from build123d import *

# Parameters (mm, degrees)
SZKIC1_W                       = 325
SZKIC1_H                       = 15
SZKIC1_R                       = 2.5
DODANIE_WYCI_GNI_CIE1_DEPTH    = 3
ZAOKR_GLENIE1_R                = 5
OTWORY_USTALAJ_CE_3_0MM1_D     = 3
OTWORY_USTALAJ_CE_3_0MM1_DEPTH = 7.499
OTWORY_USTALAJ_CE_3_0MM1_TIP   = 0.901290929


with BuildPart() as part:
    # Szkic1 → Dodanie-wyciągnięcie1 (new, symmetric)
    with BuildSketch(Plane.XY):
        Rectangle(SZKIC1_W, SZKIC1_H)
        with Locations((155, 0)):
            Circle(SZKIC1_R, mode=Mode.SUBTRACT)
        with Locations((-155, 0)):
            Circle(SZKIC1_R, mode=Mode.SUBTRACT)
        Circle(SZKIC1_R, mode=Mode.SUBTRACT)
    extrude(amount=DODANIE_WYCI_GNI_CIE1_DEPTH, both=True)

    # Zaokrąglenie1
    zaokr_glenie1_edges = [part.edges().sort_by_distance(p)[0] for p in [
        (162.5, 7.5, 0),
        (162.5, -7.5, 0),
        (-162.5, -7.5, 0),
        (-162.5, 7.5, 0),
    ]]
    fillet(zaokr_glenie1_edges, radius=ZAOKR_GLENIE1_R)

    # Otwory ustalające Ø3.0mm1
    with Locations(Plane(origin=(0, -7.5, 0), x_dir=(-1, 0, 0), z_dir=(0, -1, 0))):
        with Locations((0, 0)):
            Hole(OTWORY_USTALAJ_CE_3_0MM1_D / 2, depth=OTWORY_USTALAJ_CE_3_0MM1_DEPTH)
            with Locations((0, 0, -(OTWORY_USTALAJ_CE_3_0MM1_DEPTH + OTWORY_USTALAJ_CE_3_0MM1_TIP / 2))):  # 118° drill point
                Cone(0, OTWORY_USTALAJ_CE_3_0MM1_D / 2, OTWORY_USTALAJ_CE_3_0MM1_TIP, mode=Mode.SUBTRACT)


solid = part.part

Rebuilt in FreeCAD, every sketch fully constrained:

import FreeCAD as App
import Part
import Sketcher


def edges_at(feature, points):
    """Names of the edges that pass closest to the given points."""
    edges = feature.Shape.Edges
    near = lambda p: min(range(len(edges)), key=lambda i: edges[i].distToShape(Part.Vertex(*p))[0])
    return sorted({f"Edge{near(p) + 1}" for p in points})


def add_polygon(sketch, points):
    """Adds a closed chain of lines whose ends are joined by coincident constraints."""
    first, n = sketch.GeometryCount, len(points)
    for a, b in zip(points, points[1:] + points[:1]):
        sketch.addGeometry(Part.LineSegment(App.Vector(*a, 0), App.Vector(*b, 0)), False)
    for i in range(n):
        sketch.addConstraint(Sketcher.Constraint("Coincident", first + i, 2, first + (i + 1) % n, 1))

doc = App.newDocument("Part")
body = doc.addObject("PartDesign::Body", "Body")

# Sketch on XY plane
sketch1 = doc.addObject("Sketcher::SketchObject", "Sketch")
body.addObject(sketch1)
sketch1.AttachmentSupport = (doc.XY_Plane, [""])
sketch1.MapMode = "FlatFace"
add_polygon(sketch1, [(-162.5, 7.5), (-162.5, -7.5), (162.5, -7.5), (162.5, 7.5)])  # lines 0-3
sketch1.addGeometry(Part.Circle(App.Vector(-155, 0, 0), App.Vector(0, 0, 1), 2.5), False)  # 4
sketch1.addGeometry(Part.Circle(App.Vector(0, 0, 0), App.Vector(0, 0, 1), 2.5), False)  # 5
sketch1.addGeometry(Part.Circle(App.Vector(155, 0, 0), App.Vector(0, 0, 1), 2.5), False)  # 6
sketch1.addConstraint([
    Sketcher.Constraint("Vertical", 0),
    Sketcher.Constraint("Horizontal", 1),
    Sketcher.Constraint("Vertical", 2),
    Sketcher.Constraint("Horizontal", 3),
    Sketcher.Constraint("Coincident", 5, 3, -1, 1),
    Sketcher.Constraint("Equal", 4, 5),
    Sketcher.Constraint("Equal", 5, 6),
    Sketcher.Constraint("Symmetric", 4, 3, 6, 3, -1, 1),
    Sketcher.Constraint("Symmetric", 0, 2, 2, 2, -1, 1),
    Sketcher.Constraint("PointOnObject", 4, 3, -1),
    Sketcher.Constraint("Diameter", 4, 5.0),
    Sketcher.Constraint("DistanceX", 1, 1, 1, 2, 325.0),
    Sketcher.Constraint("DistanceY", 0, 2, 0, 1, 15.0),
    Sketcher.Constraint("DistanceX", 4, 3, -1, 1, 155.0),
])
pad1 = doc.addObject("PartDesign::Pad", "Pad")
body.addObject(pad1)
pad1.Profile = sketch1
pad1.Length = 6
pad1.Midplane = True
doc.recompute()

fillet = doc.addObject("PartDesign::Fillet", "Fillet")
body.addObject(fillet)
fillet.Base = (pad1, edges_at(pad1, [
    (162.5, 7.5, 0),
    (162.5, -7.5, 0),
    (-162.5, -7.5, 0),
    (-162.5, 7.5, 0),
]))
fillet.Radius = 5

# Sketch on XZ plane
sketch2 = doc.addObject("Sketcher::SketchObject", "Sketch001")
body.addObject(sketch2)
sketch2.AttachmentSupport = (doc.XZ_Plane, [""])
sketch2.MapMode = "FlatFace"
sketch2.AttachmentOffset = App.Placement(App.Vector(0, 0, 7.5), App.Rotation())
sketch2.addGeometry(Part.Circle(App.Vector(0, 0, 0), App.Vector(0, 0, 1), 1.5), False)
sketch2.addConstraint([
    Sketcher.Constraint("Coincident", 0, 3, -1, 1),
    Sketcher.Constraint("Diameter", 0, 3.0),
])
doc.recompute()
hole = doc.addObject("PartDesign::Hole", "Hole")
body.addObject(hole)
hole.Profile = sketch2
hole.ThreadType = "None"
hole.Diameter = 3
hole.DepthType = "Dimension"
hole.Depth = 7.499
hole.DrillPoint = "Angled"
hole.DrillPointAngle = 118

doc.recompute()
